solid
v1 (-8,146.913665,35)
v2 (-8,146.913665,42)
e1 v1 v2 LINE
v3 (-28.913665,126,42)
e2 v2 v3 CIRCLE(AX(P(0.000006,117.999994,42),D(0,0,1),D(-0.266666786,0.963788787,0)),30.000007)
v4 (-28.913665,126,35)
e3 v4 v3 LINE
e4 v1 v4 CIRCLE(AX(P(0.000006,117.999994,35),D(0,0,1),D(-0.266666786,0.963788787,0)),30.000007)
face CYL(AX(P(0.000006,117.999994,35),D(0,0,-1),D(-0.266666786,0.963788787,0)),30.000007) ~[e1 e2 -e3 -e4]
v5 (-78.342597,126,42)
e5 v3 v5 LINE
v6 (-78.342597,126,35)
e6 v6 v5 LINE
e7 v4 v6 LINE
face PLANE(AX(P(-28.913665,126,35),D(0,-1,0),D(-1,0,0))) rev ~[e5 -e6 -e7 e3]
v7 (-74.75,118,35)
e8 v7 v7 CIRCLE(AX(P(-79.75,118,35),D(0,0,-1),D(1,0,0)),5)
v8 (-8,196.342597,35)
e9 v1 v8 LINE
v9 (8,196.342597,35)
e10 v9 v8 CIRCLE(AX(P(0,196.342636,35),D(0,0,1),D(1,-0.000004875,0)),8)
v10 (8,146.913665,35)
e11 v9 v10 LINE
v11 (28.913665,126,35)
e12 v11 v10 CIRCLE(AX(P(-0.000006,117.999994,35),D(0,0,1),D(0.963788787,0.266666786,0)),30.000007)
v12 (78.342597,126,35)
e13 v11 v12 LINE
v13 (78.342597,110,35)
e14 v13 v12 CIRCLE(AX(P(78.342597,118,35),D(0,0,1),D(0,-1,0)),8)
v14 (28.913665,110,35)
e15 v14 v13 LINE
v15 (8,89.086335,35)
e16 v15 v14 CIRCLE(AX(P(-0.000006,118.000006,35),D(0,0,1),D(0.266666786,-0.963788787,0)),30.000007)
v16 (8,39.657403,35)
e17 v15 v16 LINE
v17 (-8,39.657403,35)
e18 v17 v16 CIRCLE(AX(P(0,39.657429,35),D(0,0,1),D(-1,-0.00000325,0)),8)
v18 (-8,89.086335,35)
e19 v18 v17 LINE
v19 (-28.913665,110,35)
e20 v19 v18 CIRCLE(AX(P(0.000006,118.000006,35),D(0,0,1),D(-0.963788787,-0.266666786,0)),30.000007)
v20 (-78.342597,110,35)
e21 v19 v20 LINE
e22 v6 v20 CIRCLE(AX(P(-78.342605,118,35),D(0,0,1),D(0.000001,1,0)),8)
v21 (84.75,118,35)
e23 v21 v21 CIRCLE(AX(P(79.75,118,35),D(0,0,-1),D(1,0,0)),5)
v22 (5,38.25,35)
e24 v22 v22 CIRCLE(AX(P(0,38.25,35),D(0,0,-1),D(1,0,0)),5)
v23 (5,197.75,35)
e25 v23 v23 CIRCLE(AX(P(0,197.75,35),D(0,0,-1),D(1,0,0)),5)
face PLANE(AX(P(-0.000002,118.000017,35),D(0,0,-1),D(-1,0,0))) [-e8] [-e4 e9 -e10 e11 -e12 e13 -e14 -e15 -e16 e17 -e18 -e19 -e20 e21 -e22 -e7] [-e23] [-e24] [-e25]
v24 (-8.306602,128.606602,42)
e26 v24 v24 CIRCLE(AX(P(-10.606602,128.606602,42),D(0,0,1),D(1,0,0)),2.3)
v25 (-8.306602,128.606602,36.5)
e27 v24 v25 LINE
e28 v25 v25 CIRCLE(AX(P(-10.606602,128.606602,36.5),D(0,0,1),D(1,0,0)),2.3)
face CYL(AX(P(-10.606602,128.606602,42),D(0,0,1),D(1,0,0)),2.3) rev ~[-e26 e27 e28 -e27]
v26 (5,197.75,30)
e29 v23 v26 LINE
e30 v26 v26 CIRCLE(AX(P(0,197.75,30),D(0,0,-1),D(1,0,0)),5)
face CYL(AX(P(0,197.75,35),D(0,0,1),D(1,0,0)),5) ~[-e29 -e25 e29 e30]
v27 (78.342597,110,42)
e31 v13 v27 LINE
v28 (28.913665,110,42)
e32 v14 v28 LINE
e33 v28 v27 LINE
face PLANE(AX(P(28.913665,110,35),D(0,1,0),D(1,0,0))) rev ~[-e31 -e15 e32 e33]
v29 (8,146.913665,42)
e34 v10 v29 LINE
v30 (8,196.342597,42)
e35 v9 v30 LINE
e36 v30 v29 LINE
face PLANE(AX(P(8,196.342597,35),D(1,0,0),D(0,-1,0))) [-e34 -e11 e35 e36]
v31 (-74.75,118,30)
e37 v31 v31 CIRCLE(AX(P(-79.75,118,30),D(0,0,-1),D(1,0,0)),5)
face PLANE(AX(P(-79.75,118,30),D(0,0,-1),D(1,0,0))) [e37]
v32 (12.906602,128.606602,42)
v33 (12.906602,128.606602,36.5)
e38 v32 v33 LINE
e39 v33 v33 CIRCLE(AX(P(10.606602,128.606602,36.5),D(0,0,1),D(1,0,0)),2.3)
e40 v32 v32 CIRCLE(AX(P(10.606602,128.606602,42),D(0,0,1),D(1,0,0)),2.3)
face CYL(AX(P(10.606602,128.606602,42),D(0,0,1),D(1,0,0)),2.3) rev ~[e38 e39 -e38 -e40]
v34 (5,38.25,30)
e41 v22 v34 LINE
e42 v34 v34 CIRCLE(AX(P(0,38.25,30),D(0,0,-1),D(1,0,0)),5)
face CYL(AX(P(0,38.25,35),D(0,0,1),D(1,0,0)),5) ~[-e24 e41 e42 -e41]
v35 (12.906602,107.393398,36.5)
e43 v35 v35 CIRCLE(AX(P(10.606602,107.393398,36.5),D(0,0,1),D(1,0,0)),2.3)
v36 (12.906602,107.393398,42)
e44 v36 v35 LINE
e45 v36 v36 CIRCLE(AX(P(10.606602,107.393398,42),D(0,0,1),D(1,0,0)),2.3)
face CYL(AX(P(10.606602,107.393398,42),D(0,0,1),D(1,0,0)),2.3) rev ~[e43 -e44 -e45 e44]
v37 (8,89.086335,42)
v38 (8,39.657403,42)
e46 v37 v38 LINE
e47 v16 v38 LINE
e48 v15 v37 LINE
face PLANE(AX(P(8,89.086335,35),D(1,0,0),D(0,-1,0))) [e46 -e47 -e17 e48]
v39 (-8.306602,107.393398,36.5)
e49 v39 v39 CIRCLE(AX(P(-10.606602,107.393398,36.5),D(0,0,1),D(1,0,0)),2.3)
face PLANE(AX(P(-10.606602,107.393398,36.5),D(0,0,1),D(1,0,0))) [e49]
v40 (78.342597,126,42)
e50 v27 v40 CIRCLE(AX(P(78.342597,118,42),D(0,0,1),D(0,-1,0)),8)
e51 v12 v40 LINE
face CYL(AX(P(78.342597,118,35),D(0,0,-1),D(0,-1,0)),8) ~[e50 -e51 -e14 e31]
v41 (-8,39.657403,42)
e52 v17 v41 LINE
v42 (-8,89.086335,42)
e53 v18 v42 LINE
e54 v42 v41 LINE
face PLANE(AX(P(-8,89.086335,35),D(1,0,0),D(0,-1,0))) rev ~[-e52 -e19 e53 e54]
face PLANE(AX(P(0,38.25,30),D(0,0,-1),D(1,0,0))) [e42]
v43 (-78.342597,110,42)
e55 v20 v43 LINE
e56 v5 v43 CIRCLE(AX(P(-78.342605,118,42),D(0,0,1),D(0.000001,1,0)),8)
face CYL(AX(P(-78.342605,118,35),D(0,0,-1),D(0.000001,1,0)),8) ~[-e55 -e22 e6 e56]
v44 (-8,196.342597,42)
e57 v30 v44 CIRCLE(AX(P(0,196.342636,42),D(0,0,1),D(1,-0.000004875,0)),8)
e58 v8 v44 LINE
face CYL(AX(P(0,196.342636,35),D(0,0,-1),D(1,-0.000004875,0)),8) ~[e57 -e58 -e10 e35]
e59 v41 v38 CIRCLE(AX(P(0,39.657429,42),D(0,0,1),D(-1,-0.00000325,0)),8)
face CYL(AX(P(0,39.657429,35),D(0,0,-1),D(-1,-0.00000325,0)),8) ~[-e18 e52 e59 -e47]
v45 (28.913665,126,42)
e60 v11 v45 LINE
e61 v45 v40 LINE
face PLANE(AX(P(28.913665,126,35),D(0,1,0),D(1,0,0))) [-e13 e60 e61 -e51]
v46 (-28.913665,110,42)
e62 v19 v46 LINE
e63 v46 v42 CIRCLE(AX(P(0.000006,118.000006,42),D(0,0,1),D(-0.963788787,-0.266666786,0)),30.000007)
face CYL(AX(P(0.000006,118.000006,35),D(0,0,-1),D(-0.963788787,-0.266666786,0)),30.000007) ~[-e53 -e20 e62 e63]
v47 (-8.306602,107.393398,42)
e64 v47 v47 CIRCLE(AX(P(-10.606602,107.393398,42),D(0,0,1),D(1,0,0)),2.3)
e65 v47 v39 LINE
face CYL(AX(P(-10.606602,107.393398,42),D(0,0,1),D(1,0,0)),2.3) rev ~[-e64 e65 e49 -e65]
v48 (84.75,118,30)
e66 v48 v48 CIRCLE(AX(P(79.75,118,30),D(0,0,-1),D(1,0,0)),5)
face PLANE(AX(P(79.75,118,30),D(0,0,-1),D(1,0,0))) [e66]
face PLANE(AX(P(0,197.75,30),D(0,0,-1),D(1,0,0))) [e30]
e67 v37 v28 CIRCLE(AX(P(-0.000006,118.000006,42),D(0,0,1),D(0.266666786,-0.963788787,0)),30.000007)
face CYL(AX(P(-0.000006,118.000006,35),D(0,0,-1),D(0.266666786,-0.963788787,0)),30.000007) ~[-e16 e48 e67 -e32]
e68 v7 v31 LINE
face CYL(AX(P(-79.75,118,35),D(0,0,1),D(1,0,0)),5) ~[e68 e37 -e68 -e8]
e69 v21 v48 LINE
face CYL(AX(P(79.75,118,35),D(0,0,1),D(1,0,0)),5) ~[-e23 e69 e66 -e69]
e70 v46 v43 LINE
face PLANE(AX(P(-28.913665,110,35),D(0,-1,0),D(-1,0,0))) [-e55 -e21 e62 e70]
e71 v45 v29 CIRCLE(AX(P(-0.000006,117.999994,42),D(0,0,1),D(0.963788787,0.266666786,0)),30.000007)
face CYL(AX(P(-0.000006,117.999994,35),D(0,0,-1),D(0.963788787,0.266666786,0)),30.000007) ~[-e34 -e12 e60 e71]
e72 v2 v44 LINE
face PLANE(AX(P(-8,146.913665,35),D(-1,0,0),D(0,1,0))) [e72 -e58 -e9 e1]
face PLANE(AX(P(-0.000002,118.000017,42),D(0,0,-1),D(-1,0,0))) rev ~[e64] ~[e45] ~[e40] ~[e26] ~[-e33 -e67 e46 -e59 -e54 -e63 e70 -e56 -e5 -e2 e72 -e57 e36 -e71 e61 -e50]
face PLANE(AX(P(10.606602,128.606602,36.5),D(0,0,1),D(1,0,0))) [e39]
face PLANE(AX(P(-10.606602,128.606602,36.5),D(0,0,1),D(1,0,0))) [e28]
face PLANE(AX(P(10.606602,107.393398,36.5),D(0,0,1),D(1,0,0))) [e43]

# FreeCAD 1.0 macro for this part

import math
import FreeCAD as App
import Part
import Sketcher
from FreeCAD import Vector

doc = App.newDocument("Part")
body = doc.addObject("PartDesign::Body", "Body")

# Sketch on XY plane
sketch1 = body.newObject("Sketcher::SketchObject", "Sketch")
sketch1.AttachmentSupport = (doc.getObject("XY_Plane"), [""])
sketch1.MapMode = "FlatFace"
sketch1.addGeometry(Part.LineSegment(Vector(78.342597, 126, 0), Vector(28.913665, 126, 0)), False)
sketch1.addGeometry(Part.ArcOfCircle(Part.Circle(Vector(-0.000006, 117.999994, 0), Vector(0, 0, 1), 30.000007), math.radians(15.466017), math.radians(74.533983)), False)
sketch1.addGeometry(Part.LineSegment(Vector(8, 146.913665, 0), Vector(8, 196.342597, 0)), False)
sketch1.addGeometry(Part.ArcOfCircle(Part.Circle(Vector(0, 196.342636, 0), Vector(0, 0, 1), 8), math.radians(-0.000279), math.radians(180.000279)), False)
sketch1.addGeometry(Part.LineSegment(Vector(-8, 196.342597, 0), Vector(-8, 146.913665, 0)), False)
sketch1.addGeometry(Part.ArcOfCircle(Part.Circle(Vector(0.000006, 117.999994, 0), Vector(0, 0, 1), 30.000007), math.radians(105.466017), math.radians(164.533983)), False)
sketch1.addGeometry(Part.LineSegment(Vector(-28.913665, 126, 0), Vector(-78.342597, 126, 0)), False)
sketch1.addGeometry(Part.ArcOfCircle(Part.Circle(Vector(-78.342605, 118, 0), Vector(0, 0, 1), 8), math.radians(89.999943), math.radians(270.000057)), False)
sketch1.addGeometry(Part.LineSegment(Vector(-78.342597, 110, 0), Vector(-28.913665, 110, 0)), False)
sketch1.addGeometry(Part.ArcOfCircle(Part.Circle(Vector(0.000006, 118.000006, 0), Vector(0, 0, 1), 30.000007), math.radians(-164.533983), math.radians(-105.466017)), False)
sketch1.addGeometry(Part.LineSegment(Vector(-8, 89.086335, 0), Vector(-8, 39.657403, 0)), False)
sketch1.addGeometry(Part.ArcOfCircle(Part.Circle(Vector(0, 39.657429, 0), Vector(0, 0, 1), 8), math.radians(-179.999814), math.radians(-0.000186)), False)
sketch1.addGeometry(Part.LineSegment(Vector(8, 39.657403, 0), Vector(8, 89.086335, 0)), False)
sketch1.addGeometry(Part.ArcOfCircle(Part.Circle(Vector(-0.000006, 118.000006, 0), Vector(0, 0, 1), 30.000007), math.radians(-74.533983), math.radians(-15.466017)), False)
sketch1.addGeometry(Part.LineSegment(Vector(28.913665, 110, 0), Vector(78.342597, 110, 0)), False)
sketch1.addGeometry(Part.ArcOfCircle(Part.Circle(Vector(78.342597, 118, 0), Vector(0, 0, 1), 8), math.radians(-90), math.radians(90)), False)
sketch1.addConstraint(Sketcher.Constraint("Coincident", 0, 2, 1, 1))
sketch1.addConstraint(Sketcher.Constraint("Coincident", 1, 2, 2, 1))
sketch1.addConstraint(Sketcher.Constraint("Coincident", 2, 2, 3, 1))
sketch1.addConstraint(Sketcher.Constraint("Coincident", 3, 2, 4, 1))
sketch1.addConstraint(Sketcher.Constraint("Coincident", 4, 2, 5, 1))
sketch1.addConstraint(Sketcher.Constraint("Coincident", 5, 2, 6, 1))
sketch1.addConstraint(Sketcher.Constraint("Coincident", 6, 2, 7, 1))
sketch1.addConstraint(Sketcher.Constraint("Coincident", 7, 2, 8, 1))
sketch1.addConstraint(Sketcher.Constraint("Coincident", 8, 2, 9, 1))
sketch1.addConstraint(Sketcher.Constraint("Coincident", 9, 2, 10, 1))
sketch1.addConstraint(Sketcher.Constraint("Coincident", 10, 2, 11, 1))
sketch1.addConstraint(Sketcher.Constraint("Coincident", 11, 2, 12, 1))
sketch1.addConstraint(Sketcher.Constraint("Coincident", 12, 2, 13, 1))
sketch1.addConstraint(Sketcher.Constraint("Coincident", 13, 2, 14, 1))
sketch1.addConstraint(Sketcher.Constraint("Coincident", 14, 2, 15, 1))
sketch1.addConstraint(Sketcher.Constraint("Coincident", 15, 2, 0, 1))
sketch1.addConstraint(Sketcher.Constraint("Horizontal", 0))
sketch1.addConstraint(Sketcher.Constraint("Vertical", 2))
sketch1.addConstraint(Sketcher.Constraint("Vertical", 4))
sketch1.addConstraint(Sketcher.Constraint("Horizontal", 6))
sketch1.addConstraint(Sketcher.Constraint("Horizontal", 8))
sketch1.addConstraint(Sketcher.Constraint("Vertical", 10))
sketch1.addConstraint(Sketcher.Constraint("Vertical", 12))
sketch1.addConstraint(Sketcher.Constraint("Horizontal", 14))
sketch1.addConstraint(Sketcher.Constraint("PointOnObject", 3, 3, -2))
sketch1.addConstraint(Sketcher.Constraint("PointOnObject", 11, 3, -2))
sketch1.addConstraint(Sketcher.Constraint("Radius", 3, 8.0))
sketch1.addConstraint(Sketcher.Constraint("Radius", 7, 8.0))
sketch1.addConstraint(Sketcher.Constraint("Radius", 11, 8.0))
sketch1.addConstraint(Sketcher.Constraint("Radius", 15, 8.0))
sketch1.addConstraint(Sketcher.Constraint("DistanceY", -1, 1, 7, 3, 118.0))
sketch1.addConstraint(Sketcher.Constraint("DistanceY", -1, 1, 15, 3, 118.0))
sketch1.addConstraint(Sketcher.Constraint("Radius", 1, 30.000007))
sketch1.addConstraint(Sketcher.Constraint("Radius", 5, 30.000007))
sketch1.addConstraint(Sketcher.Constraint("Radius", 9, 30.000007))
sketch1.addConstraint(Sketcher.Constraint("Radius", 13, 30.000007))
sketch1.addConstraint(Sketcher.Constraint("DistanceX", 0, 2, 0, 1, 49.428932))
sketch1.addConstraint(Sketcher.Constraint("DistanceX", 6, 2, 6, 1, 49.428932))
sketch1.addConstraint(Sketcher.Constraint("DistanceX", 8, 1, 8, 2, 49.428932))
sketch1.addConstraint(Sketcher.Constraint("DistanceX", 14, 1, 14, 2, 49.428932))
sketch1.addConstraint(Sketcher.Constraint("DistanceX", 7, 3, 1, 3, 78.342599))
sketch1.addConstraint(Sketcher.Constraint("DistanceX", 7, 3, 13, 3, 78.342599))
sketch1.addConstraint(Sketcher.Constraint("DistanceY", 2, 1, 2, 2, 49.428932))
sketch1.addConstraint(Sketcher.Constraint("DistanceY", 4, 2, 4, 1, 49.428932))
sketch1.addConstraint(Sketcher.Constraint("DistanceY", 10, 2, 10, 1, 49.428932))
sketch1.addConstraint(Sketcher.Constraint("DistanceY", 12, 1, 12, 2, 49.428932))
sketch1.addConstraint(Sketcher.Constraint("DistanceY", -1, 1, 11, 3, 39.657429))
sketch1.addConstraint(Sketcher.Constraint("DistanceY", 1, 3, 3, 3, 78.342642))
sketch1.addConstraint(Sketcher.Constraint("DistanceY", 5, 3, 3, 3, 78.342642))
sketch1.addConstraint(Sketcher.Constraint("DistanceX", 7, 3, 5, 3, 78.342611))
sketch1.addConstraint(Sketcher.Constraint("DistanceX", 7, 3, 9, 3, 78.342611))
sketch1.addConstraint(Sketcher.Constraint("DistanceY", 9, 3, 3, 3, 78.34263))
sketch1.addConstraint(Sketcher.Constraint("DistanceX", 5, 3, 15, 3, 78.342591))
sketch1.addConstraint(Sketcher.Constraint("DistanceX", 9, 3, 0, 2, 28.913659))
sketch1.addConstraint(Sketcher.Constraint("DistanceY", 9, 3, 1, 2, 28.913659))
sketch1.addConstraint(Sketcher.Constraint("DistanceY", 13, 3, 1, 2, 28.913659))
pad1 = body.newObject("PartDesign::Pad", "Pad")
pad1.Profile = sketch1
pad1.Length = 7

# Sketch on XY plane
sketch2 = body.newObject("Sketcher::SketchObject", "Sketch001")
sketch2.AttachmentSupport = (doc.getObject("XY_Plane"), [""])
sketch2.MapMode = "FlatFace"
sketch2.addGeometry(Part.Circle(Vector(0, 38, 0), Vector(0, 0, 1), 5), False)
sketch2.addGeometry(Part.Circle(Vector(0, 198, 0), Vector(0, 0, 1), 5), False)
sketch2.addGeometry(Part.Circle(Vector(-80, 118, 0), Vector(0, 0, 1), 5), False)
sketch2.addGeometry(Part.Circle(Vector(80, 118, 0), Vector(0, 0, 1), 5), False)
sketch2.addConstraint(Sketcher.Constraint("Equal", 0, 1))
sketch2.addConstraint(Sketcher.Constraint("Equal", 1, 2))
sketch2.addConstraint(Sketcher.Constraint("Equal", 2, 3))
sketch2.addConstraint(Sketcher.Constraint("Symmetric", 2, 3, 3, 3, -2))
sketch2.addConstraint(Sketcher.Constraint("PointOnObject", 0, 3, -2))
sketch2.addConstraint(Sketcher.Constraint("PointOnObject", 1, 3, -2))
sketch2.addConstraint(Sketcher.Constraint("Diameter", 0, 10.0))
sketch2.addConstraint(Sketcher.Constraint("DistanceY", -1, 1, 2, 3, 118.0))
sketch2.addConstraint(Sketcher.Constraint("DistanceY", 0, 3, 1, 3, 159.5))
sketch2.addConstraint(Sketcher.Constraint("DistanceX", 2, 3, 3, 3, 159.5))
sketch2.addConstraint(Sketcher.Constraint("DistanceY", -1, 1, 0, 3, 38.25))
pad2 = body.newObject("PartDesign::Pad", "Pad001")
pad2.Profile = sketch2
pad2.Length = 5
pad2.Reversed = True

# Sketch on XY plane
sketch3 = body.newObject("Sketcher::SketchObject", "Sketch002")
sketch3.AttachmentSupport = (doc.getObject("XY_Plane"), [""])
sketch3.MapMode = "FlatFace"
sketch3.AttachmentOffset = App.Placement(Vector(0, 0, 7), App.Rotation())
sketch3.addGeometry(Part.Circle(Vector(-10.6, 128.6, 0), Vector(0, 0, 1), 2.3), False)
sketch3.addGeometry(Part.Circle(Vector(10.6, 128.6, 0), Vector(0, 0, 1), 2.3), False)
sketch3.addGeometry(Part.Circle(Vector(10.6, 107.4, 0), Vector(0, 0, 1), 2.3), False)
sketch3.addGeometry(Part.Circle(Vector(-10.6, 107.4, 0), Vector(0, 0, 1), 2.3), False)
sketch3.addConstraint(Sketcher.Constraint("Equal", 0, 1))
sketch3.addConstraint(Sketcher.Constraint("Equal", 1, 2))
sketch3.addConstraint(Sketcher.Constraint("Equal", 2, 3))
sketch3.addConstraint(Sketcher.Constraint("Symmetric", 0, 3, 1, 3, -2))
sketch3.addConstraint(Sketcher.Constraint("Symmetric", 2, 3, 3, 3, -2))
sketch3.addConstraint(Sketcher.Constraint("Vertical", 1, 3, 2, 3))
sketch3.addConstraint(Sketcher.Constraint("Diameter", 0, 4.6))
sketch3.addConstraint(Sketcher.Constraint("DistanceY", -1, 1, 2, 3, 107.393398))
sketch3.addConstraint(Sketcher.Constraint("DistanceX", 0, 3, -1, 1, 10.606602))
sketch3.addConstraint(Sketcher.Constraint("DistanceY", -1, 1, 0, 3, 128.606602))
pocket1 = body.newObject("PartDesign::Pocket", "Pocket")
pocket1.Profile = sketch3
pocket1.Length = 5.5
body2 = doc.addObject("PartDesign::Body", "Body001")
doc.recompute()

body.Placement = App.Placement(Vector(0, 0, 35), App.Rotation(Vector(0, 0, 1), 0))
boolean = body2.newObject("PartDesign::Boolean", "Boolean")
boolean.Type = "Fuse"
boolean.addObjects([body])

doc.recompute()
